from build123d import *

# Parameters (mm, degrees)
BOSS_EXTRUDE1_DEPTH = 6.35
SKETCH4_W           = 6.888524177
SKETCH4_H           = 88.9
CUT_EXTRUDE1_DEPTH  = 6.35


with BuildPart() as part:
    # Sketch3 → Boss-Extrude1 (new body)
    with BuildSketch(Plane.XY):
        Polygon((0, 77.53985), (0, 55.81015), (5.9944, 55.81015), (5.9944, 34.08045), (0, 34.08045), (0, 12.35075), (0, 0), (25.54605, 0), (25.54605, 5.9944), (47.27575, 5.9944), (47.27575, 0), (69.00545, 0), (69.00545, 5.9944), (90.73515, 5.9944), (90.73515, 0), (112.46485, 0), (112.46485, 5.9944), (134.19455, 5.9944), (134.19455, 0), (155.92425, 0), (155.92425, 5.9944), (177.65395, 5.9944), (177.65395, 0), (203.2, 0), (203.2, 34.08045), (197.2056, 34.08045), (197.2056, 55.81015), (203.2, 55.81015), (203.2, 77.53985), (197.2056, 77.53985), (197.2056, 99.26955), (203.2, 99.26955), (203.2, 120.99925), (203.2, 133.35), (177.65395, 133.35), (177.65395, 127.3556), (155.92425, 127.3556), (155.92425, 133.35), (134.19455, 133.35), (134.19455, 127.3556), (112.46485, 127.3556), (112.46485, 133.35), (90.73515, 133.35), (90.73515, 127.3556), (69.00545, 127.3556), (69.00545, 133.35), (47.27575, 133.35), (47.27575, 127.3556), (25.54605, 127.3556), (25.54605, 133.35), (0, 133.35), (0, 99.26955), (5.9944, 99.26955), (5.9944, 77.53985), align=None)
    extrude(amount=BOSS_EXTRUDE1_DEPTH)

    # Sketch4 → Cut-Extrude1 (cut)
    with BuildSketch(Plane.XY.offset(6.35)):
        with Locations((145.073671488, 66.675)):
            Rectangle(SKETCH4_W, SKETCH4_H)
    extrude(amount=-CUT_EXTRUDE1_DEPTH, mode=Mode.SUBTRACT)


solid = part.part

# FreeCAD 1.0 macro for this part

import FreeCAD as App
import Part
import Sketcher
from FreeCAD import Vector
Q = App.Units.Quantity

doc = App.newDocument("Part")
params = doc.addObject("Spreadsheet::Sheet", "Params")
for row, (alias, value) in enumerate([
    ("sketch1_width", "0.236 in"),
    ("pad1_length", "0.25 in"),
    ("sketch2_height", "3.5 in"),
    ("pocket1_length", "0.25 in"),
], start=1):
    params.set(f"A{row}", alias)
    params.set(f"B{row}", "=" + value)
    params.setAlias(f"B{row}", alias)

body = doc.addObject("PartDesign::Body", "Body")

# Sketch on XY plane
sketch1 = body.newObject("Sketcher::SketchObject", "Sketch")
sketch1.AttachmentSupport = (doc.getObject("XY_Plane"), [""])
sketch1.MapMode = "FlatFace"
sketch1.addGeometry([
    Part.LineSegment(Vector(0, 78, 0), Vector(0, 56, 0)),  # 0
    Part.LineSegment(Vector(0, 56, 0), Vector(6, 56, 0)),  # 1
    Part.LineSegment(Vector(6, 56, 0), Vector(6, 34, 0)),  # 2
    Part.LineSegment(Vector(6, 34, 0), Vector(0, 34, 0)),  # 3
    Part.LineSegment(Vector(0, 34, 0), Vector(0, 0, 0)),  # 4
    Part.LineSegment(Vector(0, 0, 0), Vector(26, 0, 0)),  # 5
    Part.LineSegment(Vector(26, 0, 0), Vector(26, 6, 0)),  # 6
    Part.LineSegment(Vector(26, 6, 0), Vector(47, 6, 0)),  # 7
    Part.LineSegment(Vector(47, 6, 0), Vector(47, 0, 0)),  # 8
    Part.LineSegment(Vector(47, 0, 0), Vector(69, 0, 0)),  # 9
    Part.LineSegment(Vector(69, 0, 0), Vector(69, 6, 0)),  # 10
    Part.LineSegment(Vector(69, 6, 0), Vector(91, 6, 0)),  # 11
    Part.LineSegment(Vector(91, 6, 0), Vector(91, 0, 0)),  # 12
    Part.LineSegment(Vector(91, 0, 0), Vector(112, 0, 0)),  # 13
    Part.LineSegment(Vector(112, 0, 0), Vector(112, 6, 0)),  # 14
    Part.LineSegment(Vector(112, 6, 0), Vector(134, 6, 0)),  # 15
    Part.LineSegment(Vector(134, 6, 0), Vector(134, 0, 0)),  # 16
    Part.LineSegment(Vector(134, 0, 0), Vector(156, 0, 0)),  # 17
    Part.LineSegment(Vector(156, 0, 0), Vector(156, 6, 0)),  # 18
    Part.LineSegment(Vector(156, 6, 0), Vector(178, 6, 0)),  # 19
    Part.LineSegment(Vector(178, 6, 0), Vector(178, 0, 0)),  # 20
    Part.LineSegment(Vector(178, 0, 0), Vector(203, 0, 0)),  # 21
    Part.LineSegment(Vector(203, 0, 0), Vector(203, 34, 0)),  # 22
    Part.LineSegment(Vector(203, 34, 0), Vector(197, 34, 0)),  # 23
    Part.LineSegment(Vector(197, 34, 0), Vector(197, 56, 0)),  # 24
    Part.LineSegment(Vector(197, 56, 0), Vector(203, 56, 0)),  # 25
    Part.LineSegment(Vector(203, 56, 0), Vector(203, 78, 0)),  # 26
    Part.LineSegment(Vector(203, 78, 0), Vector(197, 78, 0)),  # 27
    Part.LineSegment(Vector(197, 78, 0), Vector(197, 99, 0)),  # 28
    Part.LineSegment(Vector(197, 99, 0), Vector(203, 99, 0)),  # 29
    Part.LineSegment(Vector(203, 99, 0), Vector(203, 133, 0)),  # 30
    Part.LineSegment(Vector(203, 133, 0), Vector(178, 133, 0)),  # 31
    Part.LineSegment(Vector(178, 133, 0), Vector(178, 127, 0)),  # 32
    Part.LineSegment(Vector(178, 127, 0), Vector(156, 127, 0)),  # 33
    Part.LineSegment(Vector(156, 127, 0), Vector(156, 133, 0)),  # 34
    Part.LineSegment(Vector(156, 133, 0), Vector(134, 133, 0)),  # 35
    Part.LineSegment(Vector(134, 133, 0), Vector(134, 127, 0)),  # 36
    Part.LineSegment(Vector(134, 127, 0), Vector(112, 127, 0)),  # 37
    Part.LineSegment(Vector(112, 127, 0), Vector(112, 133, 0)),  # 38
    Part.LineSegment(Vector(112, 133, 0), Vector(91, 133, 0)),  # 39
    Part.LineSegment(Vector(91, 133, 0), Vector(91, 127, 0)),  # 40
    Part.LineSegment(Vector(91, 127, 0), Vector(69, 127, 0)),  # 41
    Part.LineSegment(Vector(69, 127, 0), Vector(69, 133, 0)),  # 42
    Part.LineSegment(Vector(69, 133, 0), Vector(47, 133, 0)),  # 43
    Part.LineSegment(Vector(47, 133, 0), Vector(47, 127, 0)),  # 44
    Part.LineSegment(Vector(47, 127, 0), Vector(26, 127, 0)),  # 45
    Part.LineSegment(Vector(26, 127, 0), Vector(26, 133, 0)),  # 46
    Part.LineSegment(Vector(26, 133, 0), Vector(0, 133, 0)),  # 47
    Part.LineSegment(Vector(0, 133, 0), Vector(0, 99, 0)),  # 48
    Part.LineSegment(Vector(0, 99, 0), Vector(6, 99, 0)),  # 49
    Part.LineSegment(Vector(6, 99, 0), Vector(6, 78, 0)),  # 50
    Part.LineSegment(Vector(6, 78, 0), Vector(0, 78, 0)),  # 51
], False)
sketch1.addConstraint([
    Sketcher.Constraint("Coincident", 0, 2, 1, 1),
    Sketcher.Constraint("Coincident", 1, 2, 2, 1),
    Sketcher.Constraint("Coincident", 2, 2, 3, 1),
    Sketcher.Constraint("Coincident", 3, 2, 4, 1),
    Sketcher.Constraint("Coincident", 4, 2, 5, 1),
    Sketcher.Constraint("Coincident", 5, 2, 6, 1),
    Sketcher.Constraint("Coincident", 6, 2, 7, 1),
    Sketcher.Constraint("Coincident", 7, 2, 8, 1),
    Sketcher.Constraint("Coincident", 8, 2, 9, 1),
    Sketcher.Constraint("Coincident", 9, 2, 10, 1),
    Sketcher.Constraint("Coincident", 10, 2, 11, 1),
    Sketcher.Constraint("Coincident", 11, 2, 12, 1),
    Sketcher.Constraint("Coincident", 12, 2, 13, 1),
    Sketcher.Constraint("Coincident", 13, 2, 14, 1),
    Sketcher.Constraint("Coincident", 14, 2, 15, 1),
    Sketcher.Constraint("Coincident", 15, 2, 16, 1),
    Sketcher.Constraint("Coincident", 16, 2, 17, 1),
    Sketcher.Constraint("Coincident", 17, 2, 18, 1),
    Sketcher.Constraint("Coincident", 18, 2, 19, 1),
    Sketcher.Constraint("Coincident", 19, 2, 20, 1),
    Sketcher.Constraint("Coincident", 20, 2, 21, 1),
    Sketcher.Constraint("Coincident", 21, 2, 22, 1),
    Sketcher.Constraint("Coincident", 22, 2, 23, 1),
    Sketcher.Constraint("Coincident", 23, 2, 24, 1),
    Sketcher.Constraint("Coincident", 24, 2, 25, 1),
    Sketcher.Constraint("Coincident", 25, 2, 26, 1),
    Sketcher.Constraint("Coincident", 26, 2, 27, 1),
    Sketcher.Constraint("Coincident", 27, 2, 28, 1),
    Sketcher.Constraint("Coincident", 28, 2, 29, 1),
    Sketcher.Constraint("Coincident", 29, 2, 30, 1),
    Sketcher.Constraint("Coincident", 30, 2, 31, 1),
    Sketcher.Constraint("Coincident", 31, 2, 32, 1),
    Sketcher.Constraint("Coincident", 32, 2, 33, 1),
    Sketcher.Constraint("Coincident", 33, 2, 34, 1),
    Sketcher.Constraint("Coincident", 34, 2, 35, 1),
    Sketcher.Constraint("Coincident", 35, 2, 36, 1),
    Sketcher.Constraint("Coincident", 36, 2, 37, 1),
    Sketcher.Constraint("Coincident", 37, 2, 38, 1),
    Sketcher.Constraint("Coincident", 38, 2, 39, 1),
    Sketcher.Constraint("Coincident", 39, 2, 40, 1),
    Sketcher.Constraint("Coincident", 40, 2, 41, 1),
    Sketcher.Constraint("Coincident", 41, 2, 42, 1),
    Sketcher.Constraint("Coincident", 42, 2, 43, 1),
    Sketcher.Constraint("Coincident", 43, 2, 44, 1),
    Sketcher.Constraint("Coincident", 44, 2, 45, 1),
    Sketcher.Constraint("Coincident", 45, 2, 46, 1),
    Sketcher.Constraint("Coincident", 46, 2, 47, 1),
    Sketcher.Constraint("Coincident", 47, 2, 48, 1),
    Sketcher.Constraint("Coincident", 48, 2, 49, 1),
    Sketcher.Constraint("Coincident", 49, 2, 50, 1),
    Sketcher.Constraint("Coincident", 50, 2, 51, 1),
    Sketcher.Constraint("Coincident", 51, 2, 0, 1),
    Sketcher.Constraint("Vertical", 0),
    Sketcher.Constraint("Horizontal", 1),
    Sketcher.Constraint("Vertical", 2),
    Sketcher.Constraint("Horizontal", 3),
    Sketcher.Constraint("Vertical", 4),
    Sketcher.Constraint("Horizontal", 5),
    Sketcher.Constraint("Vertical", 6),
    Sketcher.Constraint("Horizontal", 7),
    Sketcher.Constraint("Vertical", 8),
    Sketcher.Constraint("Horizontal", 9),
    Sketcher.Constraint("Vertical", 10),
    Sketcher.Constraint("Horizontal", 11),
    Sketcher.Constraint("Vertical", 12),
    Sketcher.Constraint("Horizontal", 13),
    Sketcher.Constraint("Vertical", 14),
    Sketcher.Constraint("Horizontal", 15),
    Sketcher.Constraint("Vertical", 16),
    Sketcher.Constraint("Horizontal", 17),
    Sketcher.Constraint("Vertical", 18),
    Sketcher.Constraint("Horizontal", 19),
    Sketcher.Constraint("Vertical", 20),
    Sketcher.Constraint("Horizontal", 21),
    Sketcher.Constraint("Vertical", 22),
    Sketcher.Constraint("Horizontal", 23),
    Sketcher.Constraint("Vertical", 24),
    Sketcher.Constraint("Horizontal", 25),
    Sketcher.Constraint("Vertical", 26),
    Sketcher.Constraint("Horizontal", 27),
    Sketcher.Constraint("Vertical", 28),
    Sketcher.Constraint("Horizontal", 29),
    Sketcher.Constraint("Vertical", 30),
    Sketcher.Constraint("Horizontal", 31),
    Sketcher.Constraint("Vertical", 32),
    Sketcher.Constraint("Horizontal", 33),
    Sketcher.Constraint("Vertical", 34),
    Sketcher.Constraint("Horizontal", 35),
    Sketcher.Constraint("Vertical", 36),
    Sketcher.Constraint("Horizontal", 37),
    Sketcher.Constraint("Vertical", 38),
    Sketcher.Constraint("Horizontal", 39),
    Sketcher.Constraint("Vertical", 40),
    Sketcher.Constraint("Horizontal", 41),
    Sketcher.Constraint("Vertical", 42),
    Sketcher.Constraint("Horizontal", 43),
    Sketcher.Constraint("Vertical", 44),
    Sketcher.Constraint("Horizontal", 45),
    Sketcher.Constraint("Vertical", 46),
    Sketcher.Constraint("Horizontal", 47),
    Sketcher.Constraint("Vertical", 48),
    Sketcher.Constraint("Horizontal", 49),
    Sketcher.Constraint("Vertical", 50),
    Sketcher.Constraint("Horizontal", 51),
    Sketcher.Constraint("Coincident", 4, 2, -1, 1),
    Sketcher.Constraint("PointOnObject", 0, 2, -2),
    Sketcher.Constraint("PointOnObject", 8, 2, -1),
    Sketcher.Constraint("PointOnObject", 12, 2, -1),
    Sketcher.Constraint("PointOnObject", 16, 2, -1),
    Sketcher.Constraint("PointOnObject", 20, 2, -1),
    Sketcher.Constraint("PointOnObject", 47, 2, -2),
    Sketcher.Constraint("Horizontal", 7, 2, 10, 2),
    Sketcher.Constraint("Horizontal", 11, 2, 14, 2),
    Sketcher.Constraint("Horizontal", 15, 2, 18, 2),
    Sketcher.Constraint("Horizontal", 3, 2, 22, 2),
    Sketcher.Constraint("Horizontal", 1, 2, 24, 2),
    Sketcher.Constraint("Horizontal", 31, 2, 34, 2),
    Sketcher.Constraint("Horizontal", 33, 2, 36, 2),
    Sketcher.Constraint("Horizontal", 35, 2, 38, 2),
    Sketcher.Constraint("Horizontal", 37, 2, 40, 2),
    Sketcher.Constraint("Horizontal", 39, 2, 42, 2),
    Sketcher.Constraint("Horizontal", 41, 2, 44, 2),
    Sketcher.Constraint("Horizontal", 43, 2, 46, 2),
    Sketcher.Constraint("Horizontal", 29, 2, 48, 2),
    Sketcher.Constraint("Horizontal", 27, 2, 50, 2),
    Sketcher.Constraint("Vertical", 22, 2, 25, 2),
    Sketcher.Constraint("Vertical", 24, 2, 27, 2),
    Sketcher.Constraint("Vertical", 26, 2, 29, 2),
    Sketcher.Constraint("Vertical", 20, 2, 31, 2),
    Sketcher.Constraint("Vertical", 18, 2, 33, 2),
    Sketcher.Constraint("Vertical", 16, 2, 35, 2),
    Sketcher.Constraint("Vertical", 14, 2, 37, 2),
    Sketcher.Constraint("Vertical", 12, 2, 39, 2),
    Sketcher.Constraint("Vertical", 10, 2, 41, 2),
    Sketcher.Constraint("Vertical", 8, 2, 43, 2),
    Sketcher.Constraint("Vertical", 6, 2, 45, 2),
    Sketcher.Constraint("Vertical", 2, 2, 49, 2),
    Sketcher.Constraint("Equal", 7, 9),
    Sketcher.Constraint("Equal", 9, 11),
    Sketcher.Constraint("Equal", 11, 13),
    Sketcher.Constraint("Equal", 13, 15),
    Sketcher.Constraint("Equal", 15, 17),
    Sketcher.Constraint("Equal", 17, 19),
    Sketcher.Constraint("Equal", 5, 21),
    Sketcher.Constraint("Equal", 3, 23),
    Sketcher.Constraint("Equal", 45, 0),
    Sketcher.Constraint("Equal", 0, 2),
    Sketcher.Constraint("Equal", 51, 6),
    Sketcher.Constraint("Equal", 26, 28),
    Sketcher.Constraint("Equal", 22, 30),
    Sketcher.Constraint("Equal", 20, 32),
    Sketcher.Constraint("DistanceX", -1, 1, 21, 2, Q("8 in")),
    Sketcher.Constraint("DistanceX", 1, 1, 1, 2, Q("0.236 in")),
    Sketcher.Constraint("DistanceY", -1, 1, 30, 2, Q("5.25 in")),
    Sketcher.Constraint("DistanceX", 7, 1, 7, 2, Q("0.8555 in")),
])
sketch1.setExpression("Constraints[152]", "Params.sketch1_width")
pad1 = body.newObject("PartDesign::Pad", "Pad")
pad1.Profile = sketch1
pad1.setExpression("Length", "Params.pad1_length")

# Sketch on XY plane
sketch2 = body.newObject("Sketcher::SketchObject", "Sketch001")
sketch2.AttachmentSupport = (doc.getObject("XY_Plane"), [""])
sketch2.MapMode = "FlatFace"
sketch2.AttachmentOffset = App.Placement(Vector(0, 0, 0.25 * 25.4), App.Rotation())
sketch2.addGeometry([
    Part.LineSegment(Vector(142, 111, 0), Vector(142, 22, 0)),
    Part.LineSegment(Vector(142, 22, 0), Vector(149, 22, 0)),
    Part.LineSegment(Vector(149, 22, 0), Vector(149, 111, 0)),
    Part.LineSegment(Vector(149, 111, 0), Vector(142, 111, 0)),
], False)
sketch2.addConstraint([
    Sketcher.Constraint("Coincident", 0, 2, 1, 1),
    Sketcher.Constraint("Coincident", 1, 2, 2, 1),
    Sketcher.Constraint("Coincident", 2, 2, 3, 1),
    Sketcher.Constraint("Coincident", 3, 2, 0, 1),
    Sketcher.Constraint("Vertical", 0),
    Sketcher.Constraint("Horizontal", 1),
    Sketcher.Constraint("Vertical", 2),
    Sketcher.Constraint("Horizontal", 3),
    Sketcher.Constraint("DistanceY", 0, 2, 0, 1, Q("3.5 in")),
    Sketcher.Constraint("DistanceY", -1, 1, 0, 2, Q("0.875 in")),
    Sketcher.Constraint("DistanceX", 1, 1, 1, 2, 6.888524),
    Sketcher.Constraint("DistanceX", -1, 1, 0, 2, 141.629409),
])
sketch2.setExpression("Constraints[8]", "Params.sketch2_height")
pocket1 = body.newObject("PartDesign::Pocket", "Pocket")
pocket1.Profile = sketch2
pocket1.setExpression("Length", "Params.pocket1_length")

doc.recompute()
